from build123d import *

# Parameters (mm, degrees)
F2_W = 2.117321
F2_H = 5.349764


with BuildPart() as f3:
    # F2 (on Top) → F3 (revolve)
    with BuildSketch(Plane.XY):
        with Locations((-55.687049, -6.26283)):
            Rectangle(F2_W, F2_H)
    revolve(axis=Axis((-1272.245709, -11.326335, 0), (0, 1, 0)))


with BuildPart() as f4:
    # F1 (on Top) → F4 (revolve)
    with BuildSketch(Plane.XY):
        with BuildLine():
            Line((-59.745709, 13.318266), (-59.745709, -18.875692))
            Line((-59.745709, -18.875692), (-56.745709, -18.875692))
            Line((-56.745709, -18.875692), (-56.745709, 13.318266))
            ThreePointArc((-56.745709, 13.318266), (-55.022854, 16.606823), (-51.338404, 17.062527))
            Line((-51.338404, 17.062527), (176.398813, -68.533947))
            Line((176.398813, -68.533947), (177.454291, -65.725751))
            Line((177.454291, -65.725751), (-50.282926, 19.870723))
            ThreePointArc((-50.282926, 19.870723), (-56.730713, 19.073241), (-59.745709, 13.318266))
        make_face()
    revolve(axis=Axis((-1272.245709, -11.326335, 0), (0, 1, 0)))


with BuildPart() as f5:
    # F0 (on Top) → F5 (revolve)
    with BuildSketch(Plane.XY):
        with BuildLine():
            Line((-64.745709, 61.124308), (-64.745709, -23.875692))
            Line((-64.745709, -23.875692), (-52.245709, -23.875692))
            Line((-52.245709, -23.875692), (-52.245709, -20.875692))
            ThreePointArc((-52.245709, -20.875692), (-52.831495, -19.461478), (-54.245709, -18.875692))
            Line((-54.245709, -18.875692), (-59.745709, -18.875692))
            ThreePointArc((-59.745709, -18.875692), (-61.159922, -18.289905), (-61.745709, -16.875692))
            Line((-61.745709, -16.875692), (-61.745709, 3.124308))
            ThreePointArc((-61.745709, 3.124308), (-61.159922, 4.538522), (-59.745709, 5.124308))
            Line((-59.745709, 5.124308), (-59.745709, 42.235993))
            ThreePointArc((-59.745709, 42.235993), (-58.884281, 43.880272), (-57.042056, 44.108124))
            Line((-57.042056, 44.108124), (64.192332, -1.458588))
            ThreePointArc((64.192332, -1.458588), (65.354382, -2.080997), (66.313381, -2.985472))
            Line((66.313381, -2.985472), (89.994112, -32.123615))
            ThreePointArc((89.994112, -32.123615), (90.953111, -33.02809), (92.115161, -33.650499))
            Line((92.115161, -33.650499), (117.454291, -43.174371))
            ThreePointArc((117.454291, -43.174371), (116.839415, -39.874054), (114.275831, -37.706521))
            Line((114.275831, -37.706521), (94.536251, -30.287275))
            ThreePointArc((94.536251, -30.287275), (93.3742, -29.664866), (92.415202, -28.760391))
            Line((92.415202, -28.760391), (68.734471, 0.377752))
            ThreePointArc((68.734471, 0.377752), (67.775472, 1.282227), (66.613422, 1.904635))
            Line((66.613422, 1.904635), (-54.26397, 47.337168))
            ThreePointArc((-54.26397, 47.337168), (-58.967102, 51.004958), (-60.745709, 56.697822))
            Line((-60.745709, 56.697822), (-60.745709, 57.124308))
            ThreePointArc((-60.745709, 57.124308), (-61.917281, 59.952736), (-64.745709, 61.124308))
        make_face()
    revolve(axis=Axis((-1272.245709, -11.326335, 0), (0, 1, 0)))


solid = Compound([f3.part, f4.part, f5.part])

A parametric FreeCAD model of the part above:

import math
import FreeCAD as App
import Part
import Sketcher

V = App.Vector
Q = App.Units.Quantity


def add_polygon(sketch, points):
    """Adds a closed chain of lines whose ends are joined by coincident constraints."""
    first, n = sketch.GeometryCount, len(points)
    for a, b in zip(points, points[1:] + points[:1]):
        sketch.addGeometry(Part.LineSegment(App.Vector(*a, 0), App.Vector(*b, 0)), False)
    for i in range(n):
        sketch.addConstraint(Sketcher.Constraint("Coincident", first + i, 2, first + (i + 1) % n, 1))

doc = App.newDocument("Part")
params = doc.addObject("Spreadsheet::Sheet", "Params")
for row, (alias, value) in enumerate([
    ("revolution_angle", "360 deg"),
    ("sketch2_radius", "4 mm"),
    ("sketch2_radius2", "7 mm"),
    ("revolution2_angle", "360 deg"),
    ("sketch3_radius", "1.999999 mm"),
    ("sketch3_radius2", "2.000002 mm"),
    ("sketch3_radius3", "2 mm"),
    ("sketch3_radius4", "2.000001 mm"),
    ("sketch3_radius5", "5 mm"),
    ("revolution3_angle", "360 deg"),
], start=1):
    params.set(f"A{row}", alias)
    params.set(f"B{row}", "=" + value)
    params.setAlias(f"B{row}", alias)

body = doc.addObject("PartDesign::Body", "Body")

# Sketch on XY plane
sketch1 = body.newObject("Sketcher::SketchObject", "Sketch")
sketch1.AttachmentSupport = (doc.getObject("XY_Plane"), [""])
sketch1.MapMode = "FlatFace"
add_polygon(sketch1, [(-56.7, -3.6), (-56.7, -8.9), (-54.6, -8.9), (-54.6, -3.6)])  # lines 0-3
sketch1.addGeometry(Part.LineSegment(V(-1272.2, -8.9, 0), V(-1272.2, -3.6, 0)), True)  # axis
sketch1.addConstraint(Sketcher.Constraint("Vertical", 0))
sketch1.addConstraint(Sketcher.Constraint("Horizontal", 1))
sketch1.addConstraint(Sketcher.Constraint("Vertical", 2))
sketch1.addConstraint(Sketcher.Constraint("Horizontal", 3))
sketch1.addConstraint(Sketcher.Constraint("Vertical", 4))
sketch1.addConstraint(Sketcher.Constraint("Horizontal", 1, 2, 4, 1))
sketch1.addConstraint(Sketcher.Constraint("Horizontal", 3, 2, 4, 2))
sketch1.addConstraint(Sketcher.Constraint("DistanceX", 4, 1, 0, 2, Q("1215.5 mm")))
sketch1.addConstraint(Sketcher.Constraint("DistanceX", 1, 1, 1, 2, Q("2.117321 mm")))
sketch1.addConstraint(Sketcher.Constraint("DistanceY", 0, 2, 0, 1, Q("5.349764 mm")))
sketch1.addConstraint(Sketcher.Constraint("DistanceX", 0, 2, -1, 1, Q("56.745709 mm")))
sketch1.addConstraint(Sketcher.Constraint("DistanceY", 0, 2, -1, 1, Q("8.937712 mm")))
revolution = body.newObject("PartDesign::Revolution", "Revolution")
revolution.Profile = sketch1
revolution.ReferenceAxis = (sketch1, ["Axis0"])
revolution.setExpression("Angle", "Params.revolution_angle")
body2 = doc.addObject("PartDesign::Body", "Body001")

# Sketch on XY plane
sketch2 = body2.newObject("Sketcher::SketchObject", "Sketch001")
sketch2.AttachmentSupport = (doc.getObject("XY_Plane001"), [""])
sketch2.MapMode = "FlatFace"
sketch2.addGeometry(Part.LineSegment(V(-59.7, 13.3, 0), V(-59.7, -18.9, 0)), False)
sketch2.addGeometry(Part.LineSegment(V(-59.7, -18.9, 0), V(-56.7, -18.9, 0)), False)
sketch2.addGeometry(Part.LineSegment(V(-56.7, -18.9, 0), V(-56.7, 13.3, 0)), False)
sketch2.addGeometry(Part.ArcOfCircle(Part.Circle(V(-52.7, 13.3, 0), V(0, 0, 1), 4), math.radians(69), math.radians(180)), False)
sketch2.addGeometry(Part.LineSegment(V(-51.3, 17.1, 0), V(176.4, -68.5, 0)), False)
sketch2.addGeometry(Part.LineSegment(V(176.4, -68.5, 0), V(177.5, -65.7, 0)), False)
sketch2.addGeometry(Part.LineSegment(V(177.5, -65.7, 0), V(-50.3, 19.9, 0)), False)
sketch2.addGeometry(Part.ArcOfCircle(Part.Circle(V(-52.7, 13.3, 0), V(0, 0, 1), 7), math.radians(69), math.radians(180)), False)
sketch2.addGeometry(Part.LineSegment(V(-1272.2, -68.5, 0), V(-1272.2, 19.9, 0)), True)  # axis
sketch2.addConstraint(Sketcher.Constraint("Coincident", 0, 2, 1, 1))
sketch2.addConstraint(Sketcher.Constraint("Coincident", 1, 2, 2, 1))
sketch2.addConstraint(Sketcher.Constraint("Tangent", 2, 2, 3, 2))
sketch2.addConstraint(Sketcher.Constraint("Tangent", 3, 1, 4, 1))
sketch2.addConstraint(Sketcher.Constraint("Coincident", 4, 2, 5, 1))
sketch2.addConstraint(Sketcher.Constraint("Coincident", 5, 2, 6, 1))
sketch2.addConstraint(Sketcher.Constraint("Tangent", 6, 2, 7, 1))
sketch2.addConstraint(Sketcher.Constraint("Tangent", 7, 2, 0, 1))
sketch2.addConstraint(Sketcher.Constraint("Vertical", 0))
sketch2.addConstraint(Sketcher.Constraint("Horizontal", 1))
sketch2.addConstraint(Sketcher.Constraint("Vertical", 2))
sketch2.addConstraint(Sketcher.Constraint("Vertical", 8))
sketch2.addConstraint(Sketcher.Constraint("Coincident", 7, 3, 3, 3))
sketch2.addConstraint(Sketcher.Constraint("Perpendicular", 4, 5))
sketch2.addConstraint(Sketcher.Constraint("Perpendicular", 5, 6))
sketch2.addConstraint(Sketcher.Constraint("Horizontal", 4, 2, 8, 1))
sketch2.addConstraint(Sketcher.Constraint("Horizontal", 6, 2, 8, 2))
sketch2.addConstraint(Sketcher.Constraint("Radius", 3, Q("4 mm")))
sketch2.addConstraint(Sketcher.Constraint("Radius", 7, Q("7 mm")))
sketch2.addConstraint(Sketcher.Constraint("DistanceX", 1, 2, 5, 2, Q("234.2 mm")))
sketch2.addConstraint(Sketcher.Constraint("DistanceX", 8, 1, 0, 2, Q("1212.5 mm")))
sketch2.addConstraint(Sketcher.Constraint("Distance", 4, Q("243.291998 mm")))
sketch2.addConstraint(Sketcher.Constraint("DistanceY", 0, 2, 0, 1, Q("32.193958 mm")))
sketch2.addConstraint(Sketcher.Constraint("DistanceX", 3, 3, -1, 1, Q("52.745709 mm")))
sketch2.addConstraint(Sketcher.Constraint("DistanceY", 5, 2, -1, 1, Q("65.725751 mm")))
sketch2.setExpression("Constraints[17]", "Params.sketch2_radius")
sketch2.setExpression("Constraints[18]", "Params.sketch2_radius2")
revolution2 = body2.newObject("PartDesign::Revolution", "Revolution001")
revolution2.Profile = sketch2
revolution2.ReferenceAxis = (sketch2, ["Axis0"])
revolution2.setExpression("Angle", "Params.revolution2_angle")
body3 = doc.addObject("PartDesign::Body", "Body002")

# Sketch on XY plane
sketch3 = body3.newObject("Sketcher::SketchObject", "Sketch002")
sketch3.AttachmentSupport = (doc.getObject("XY_Plane002"), [""])
sketch3.MapMode = "FlatFace"
sketch3.addGeometry(Part.LineSegment(V(-64.745709, 61.124308, 0), V(-64.745709, -23.875692, 0)), False)
sketch3.addGeometry(Part.LineSegment(V(-64.745709, -23.875692, 0), V(-52.245709, -23.875692, 0)), False)
sketch3.addGeometry(Part.LineSegment(V(-52.245709, -23.875692, 0), V(-52.245709, -20.875692, 0)), False)
sketch3.addGeometry(Part.ArcOfCircle(Part.Circle(V(-54.245708, -20.875691, 0), V(0, 0, 1), 1.999999), math.radians(-0.000043), math.radians(90.000043)), False)
sketch3.addGeometry(Part.LineSegment(V(-54.245709, -18.875692, 0), V(-59.745709, -18.875692, 0)), False)
sketch3.addGeometry(Part.ArcOfCircle(Part.Circle(V(-59.745707, -16.87569, 0), V(0, 0, 1), 2.000002), math.radians(-179.999945), math.radians(-90.000055)), False)
sketch3.addGeometry(Part.LineSegment(V(-61.745709, -16.875692, 0), V(-61.745709, 3.124308, 0)), False)
sketch3.addGeometry(Part.ArcOfCircle(Part.Circle(V(-59.745709, 3.124308, 0), V(0, 0, 1), 2), math.radians(90.000006), math.radians(179.999994)), False)
sketch3.addGeometry(Part.LineSegment(V(-59.745709, 5.124308, 0), V(-59.745709, 42.235993, 0)), False)
sketch3.addGeometry(Part.ArcOfCircle(Part.Circle(V(-57.745708, 42.235993, 0), V(0, 0, 1), 2.000001), math.radians(69.400957), math.radians(179.999986)), False)
sketch3.addGeometry(Part.LineSegment(V(-57.042056, 44.108124, 0), V(64.192332, -1.458588, 0)), False)
sketch3.addGeometry(Part.ArcOfCircle(Part.Circle(V(62.433193, -6.138924, 0), V(0, 0, 1), 5.000012), math.radians(39.100975), math.radians(69.400904)), False)
sketch3.addGeometry(Part.LineSegment(V(66.313381, -2.985472, 0), V(89.994112, -32.123615, 0)), False)
sketch3.addGeometry(Part.ArcOfCircle(Part.Circle(V(93.8743, -28.970163, 0), V(0, 0, 1), 5.000012), math.radians(-140.899025), math.radians(-110.599096)), False)
sketch3.addGeometry(Part.LineSegment(V(92.115161, -33.650499, 0), V(117.454291, -43.174371, 0)), False)
sketch3.addGeometry(Part.ArcOfCircle(Part.Circle(V(112.516699, -42.386848, 0), V(0, 0, 1), 5), math.radians(-9.062084), math.radians(69.400939)), False)
sketch3.addGeometry(Part.LineSegment(V(114.275831, -37.706521, 0), V(94.536251, -30.287275, 0)), False)
sketch3.addGeometry(Part.ArcOfCircle(Part.Circle(V(96.29538, -25.606952, 0), V(0, 0, 1), 4.999996), math.radians(-140.899076), math.radians(-110.599046)), False)
sketch3.addGeometry(Part.LineSegment(V(92.415202, -28.760391, 0), V(68.734471, 0.377752, 0)), False)
sketch3.addGeometry(Part.ArcOfCircle(Part.Circle(V(64.854293, -2.775691, 0), V(0, 0, 1), 4.999998), math.radians(39.100954), math.radians(69.40096)), False)
sketch3.addGeometry(Part.LineSegment(V(66.613422, 1.904635, 0), V(-54.26397, 47.337168, 0)), False)
sketch3.addGeometry(Part.ArcOfCircle(Part.Circle(V(-50.745709, 56.697822, 0), V(0, 0, 1), 10), math.radians(179.999998), math.radians(249.400953)), False)
sketch3.addGeometry(Part.LineSegment(V(-60.745709, 56.697822, 0), V(-60.745709, 57.124308, 0)), False)
sketch3.addGeometry(Part.ArcOfCircle(Part.Circle(V(-64.745706, 57.124311, 0), V(0, 0, 1), 3.999997), math.radians(-0.000043), math.radians(90.000043)), False)
sketch3.addGeometry(Part.LineSegment(V(-1272.245709, -43.174371, 0), V(-1272.245709, 61.124308, 0)), True)  # axis
sketch3.addConstraint(Sketcher.Constraint("Coincident", 0, 2, 1, 1))
sketch3.addConstraint(Sketcher.Constraint("Coincident", 1, 2, 2, 1))
sketch3.addConstraint(Sketcher.Constraint("Coincident", 2, 2, 3, 1))
sketch3.addConstraint(Sketcher.Constraint("Coincident", 3, 2, 4, 1))
sketch3.addConstraint(Sketcher.Constraint("Coincident", 4, 2, 5, 2))
sketch3.addConstraint(Sketcher.Constraint("Coincident", 5, 1, 6, 1))
sketch3.addConstraint(Sketcher.Constraint("Coincident", 6, 2, 7, 2))
sketch3.addConstraint(Sketcher.Constraint("Coincident", 7, 1, 8, 1))
sketch3.addConstraint(Sketcher.Constraint("Coincident", 8, 2, 9, 2))
sketch3.addConstraint(Sketcher.Constraint("Coincident", 9, 1, 10, 1))
sketch3.addConstraint(Sketcher.Constraint("Coincident", 10, 2, 11, 2))
sketch3.addConstraint(Sketcher.Constraint("Coincident", 11, 1, 12, 1))
sketch3.addConstraint(Sketcher.Constraint("Coincident", 12, 2, 13, 1))
sketch3.addConstraint(Sketcher.Constraint("Coincident", 13, 2, 14, 1))
sketch3.addConstraint(Sketcher.Constraint("Coincident", 14, 2, 15, 1))
sketch3.addConstraint(Sketcher.Constraint("Coincident", 15, 2, 16, 1))
sketch3.addConstraint(Sketcher.Constraint("Coincident", 16, 2, 17, 2))
sketch3.addConstraint(Sketcher.Constraint("Coincident", 17, 1, 18, 1))
sketch3.addConstraint(Sketcher.Constraint("Coincident", 18, 2, 19, 1))
sketch3.addConstraint(Sketcher.Constraint("Coincident", 19, 2, 20, 1))
sketch3.addConstraint(Sketcher.Constraint("Coincident", 20, 2, 21, 2))
sketch3.addConstraint(Sketcher.Constraint("Coincident", 21, 1, 22, 1))
sketch3.addConstraint(Sketcher.Constraint("Coincident", 22, 2, 23, 1))
sketch3.addConstraint(Sketcher.Constraint("Coincident", 23, 2, 0, 1))
sketch3.addConstraint(Sketcher.Constraint("Vertical", 0))
sketch3.addConstraint(Sketcher.Constraint("Horizontal", 1))
sketch3.addConstraint(Sketcher.Constraint("Vertical", 2))
sketch3.addConstraint(Sketcher.Constraint("Horizontal", 4))
sketch3.addConstraint(Sketcher.Constraint("Vertical", 6))
sketch3.addConstraint(Sketcher.Constraint("Vertical", 8))
sketch3.addConstraint(Sketcher.Constraint("Vertical", 22))
sketch3.addConstraint(Sketcher.Constraint("Vertical", 24))
sketch3.addConstraint(Sketcher.Constraint("Radius", 3, Q("1.999999 mm")))
sketch3.addConstraint(Sketcher.Constraint("Radius", 5, Q("2.000002 mm")))
sketch3.addConstraint(Sketcher.Constraint("Radius", 7, Q("2 mm")))
sketch3.addConstraint(Sketcher.Constraint("Radius", 9, Q("2.000001 mm")))
sketch3.addConstraint(Sketcher.Constraint("Radius", 15, Q("5 mm")))
sketch3.addConstraint(Sketcher.Constraint("Radius", 19, Q("4.999998 mm")))
sketch3.addConstraint(Sketcher.Constraint("Radius", 21, Q("10 mm")))
sketch3.addConstraint(Sketcher.Constraint("DistanceY", 0, 2, 0, 1, Q("85 mm")))
sketch3.addConstraint(Sketcher.Constraint("DistanceY", 2, 1, 2, 2, Q("3 mm")))
sketch3.addConstraint(Sketcher.Constraint("DistanceY", 6, 1, 6, 2, Q("20 mm")))
sketch3.addConstraint(Sketcher.Constraint("DistanceX", 1, 1, 1, 2, Q("12.5 mm")))
sketch3.addConstraint(Sketcher.Constraint("DistanceX", 4, 2, 4, 1, Q("5.5 mm")))
sketch3.addConstraint(Sketcher.Constraint("DistanceY", 3, 3, 7, 3, Q("23.999998 mm")))
sketch3.addConstraint(Sketcher.Constraint("DistanceX", 7, 3, 9, 3, Q("2 mm")))
sketch3.addConstraint(Sketcher.Constraint("DistanceX", 9, 3, 21, 3, Q("6.999999 mm")))
sketch3.addConstraint(Sketcher.Constraint("DistanceX", 23, 3, 5, 3, Q("4.999999 mm")))
sketch3.addConstraint(Sketcher.Constraint("DistanceY", 5, 3, 23, 3, Q("74.000001 mm")))
sketch3.addConstraint(Sketcher.Constraint("DistanceX", 0, 2, 5, 3, Q("5.000002 mm")))
sketch3.addConstraint(Sketcher.Constraint("DistanceX", 3, 2, 2, 2, Q("2 mm")))
sketch3.addConstraint(Sketcher.Constraint("DistanceY", 4, 2, 5, 1, Q("2 mm")))
sketch3.addConstraint(Sketcher.Constraint("DistanceY", 22, 2, 23, 2, Q("4 mm")))
sketch3.addConstraint(Sketcher.Constraint("DistanceY", 0, 2, 24, 2, Q("85 mm")))
sketch3.addConstraint(Sketcher.Constraint("DistanceX", 3, 3, 19, 3, Q("119.1 mm")))
sketch3.addConstraint(Sketcher.Constraint("DistanceY", 3, 3, 19, 3, Q("18.1 mm")))
sketch3.addConstraint(Sketcher.Constraint("DistanceX", 24, 1, 0, 2, Q("1207.5 mm")))
sketch3.addConstraint(Sketcher.Constraint("Radius", 11, Q("5.000012 mm")))
sketch3.addConstraint(Sketcher.Constraint("Radius", 13, Q("5.000012 mm")))
sketch3.addConstraint(Sketcher.Constraint("Radius", 17, Q("4.999996 mm")))
sketch3.addConstraint(Sketcher.Constraint("DistanceX", 11, 1, 17, 3, Q("29.981999 mm")))
sketch3.addConstraint(Sketcher.Constraint("DistanceY", 24, 1, 24, 2, Q("104.298679 mm")))
sketch3.addConstraint(Sketcher.Constraint("DistanceX", -1, 1, 13, 3, Q("93.8743 mm")))
sketch3.addConstraint(Sketcher.Constraint("DistanceX", -1, 1, 15, 3, Q("112.516699 mm")))
sketch3.addConstraint(Sketcher.Constraint("DistanceY", 13, 2, -1, 1, Q("33.650499 mm")))
sketch3.addConstraint(Sketcher.Constraint("DistanceX", 3, 3, 11, 3, Q("116.678901 mm")))
sketch3.addConstraint(Sketcher.Constraint("DistanceY", 9, 1, 21, 1, Q("12.589698 mm")))
sketch3.addConstraint(Sketcher.Constraint("Distance", 14, Q("27.069829 mm")))
sketch3.addConstraint(Sketcher.Constraint("Distance", 16, Q("21.087822 mm")))
sketch3.addConstraint(Sketcher.Constraint("DistanceY", 8, 1, 8, 2, Q("37.111685 mm")))
sketch3.addConstraint(Sketcher.Constraint("DistanceY", 22, 1, 22, 2, Q("0.426486 mm")))
sketch3.addConstraint(Sketcher.Constraint("DistanceY", 3, 3, -1, 1, Q("20.875691 mm")))
sketch3.addConstraint(Sketcher.Constraint("DistanceX", 7, 3, -1, 1, Q("59.745709 mm")))
sketch3.addConstraint(Sketcher.Constraint("DistanceX", -1, 1, 17, 3, Q("96.29538 mm")))
sketch3.addConstraint(Sketcher.Constraint("DistanceY", -1, 1, 21, 3, Q("56.697822 mm")))
sketch3.addConstraint(Sketcher.Constraint("DistanceX", -1, 1, 10, 2, Q("64.192332 mm")))
sketch3.addConstraint(Sketcher.Constraint("DistanceX", -1, 1, 12, 2, Q("89.994112 mm")))
sketch3.addConstraint(Sketcher.Constraint("DistanceX", -1, 1, 13, 2, Q("92.115161 mm")))
sketch3.addConstraint(Sketcher.Constraint("DistanceX", -1, 1, 14, 2, Q("117.454291 mm")))
sketch3.addConstraint(Sketcher.Constraint("DistanceX", -1, 1, 15, 2, Q("114.275831 mm")))
sketch3.addConstraint(Sketcher.Constraint("DistanceX", -1, 1, 16, 2, Q("94.536251 mm")))
sketch3.addConstraint(Sketcher.Constraint("DistanceY", 17, 1, -1, 1, Q("28.760391 mm")))
sketch3.addConstraint(Sketcher.Constraint("DistanceX", -1, 1, 18, 2, Q("68.734471 mm")))
sketch3.addConstraint(Sketcher.Constraint("DistanceX", 20, 2, -1, 1, Q("54.26397 mm")))
sketch3.addConstraint(Sketcher.Constraint("DistanceY", 13, 3, 11, 3, Q("22.831238 mm")))
sketch3.addConstraint(Sketcher.Constraint("DistanceY", 9, 3, 21, 3, Q("14.461829 mm")))
sketch3.addConstraint(Sketcher.Constraint("DistanceX", 19, 2, 18, 2, Q("2.121049 mm")))
sketch3.setExpression("Constraints[32]", "Params.sketch3_radius")
sketch3.setExpression("Constraints[33]", "Params.sketch3_radius2")
sketch3.setExpression("Constraints[34]", "Params.sketch3_radius3")
sketch3.setExpression("Constraints[35]", "Params.sketch3_radius4")
sketch3.setExpression("Constraints[36]", "Params.sketch3_radius5")
revolution3 = body3.newObject("PartDesign::Revolution", "Revolution002")
revolution3.Profile = sketch3
revolution3.ReferenceAxis = (sketch3, ["Axis0"])
revolution3.setExpression("Angle", "Params.revolution3_angle")

doc.recompute()
